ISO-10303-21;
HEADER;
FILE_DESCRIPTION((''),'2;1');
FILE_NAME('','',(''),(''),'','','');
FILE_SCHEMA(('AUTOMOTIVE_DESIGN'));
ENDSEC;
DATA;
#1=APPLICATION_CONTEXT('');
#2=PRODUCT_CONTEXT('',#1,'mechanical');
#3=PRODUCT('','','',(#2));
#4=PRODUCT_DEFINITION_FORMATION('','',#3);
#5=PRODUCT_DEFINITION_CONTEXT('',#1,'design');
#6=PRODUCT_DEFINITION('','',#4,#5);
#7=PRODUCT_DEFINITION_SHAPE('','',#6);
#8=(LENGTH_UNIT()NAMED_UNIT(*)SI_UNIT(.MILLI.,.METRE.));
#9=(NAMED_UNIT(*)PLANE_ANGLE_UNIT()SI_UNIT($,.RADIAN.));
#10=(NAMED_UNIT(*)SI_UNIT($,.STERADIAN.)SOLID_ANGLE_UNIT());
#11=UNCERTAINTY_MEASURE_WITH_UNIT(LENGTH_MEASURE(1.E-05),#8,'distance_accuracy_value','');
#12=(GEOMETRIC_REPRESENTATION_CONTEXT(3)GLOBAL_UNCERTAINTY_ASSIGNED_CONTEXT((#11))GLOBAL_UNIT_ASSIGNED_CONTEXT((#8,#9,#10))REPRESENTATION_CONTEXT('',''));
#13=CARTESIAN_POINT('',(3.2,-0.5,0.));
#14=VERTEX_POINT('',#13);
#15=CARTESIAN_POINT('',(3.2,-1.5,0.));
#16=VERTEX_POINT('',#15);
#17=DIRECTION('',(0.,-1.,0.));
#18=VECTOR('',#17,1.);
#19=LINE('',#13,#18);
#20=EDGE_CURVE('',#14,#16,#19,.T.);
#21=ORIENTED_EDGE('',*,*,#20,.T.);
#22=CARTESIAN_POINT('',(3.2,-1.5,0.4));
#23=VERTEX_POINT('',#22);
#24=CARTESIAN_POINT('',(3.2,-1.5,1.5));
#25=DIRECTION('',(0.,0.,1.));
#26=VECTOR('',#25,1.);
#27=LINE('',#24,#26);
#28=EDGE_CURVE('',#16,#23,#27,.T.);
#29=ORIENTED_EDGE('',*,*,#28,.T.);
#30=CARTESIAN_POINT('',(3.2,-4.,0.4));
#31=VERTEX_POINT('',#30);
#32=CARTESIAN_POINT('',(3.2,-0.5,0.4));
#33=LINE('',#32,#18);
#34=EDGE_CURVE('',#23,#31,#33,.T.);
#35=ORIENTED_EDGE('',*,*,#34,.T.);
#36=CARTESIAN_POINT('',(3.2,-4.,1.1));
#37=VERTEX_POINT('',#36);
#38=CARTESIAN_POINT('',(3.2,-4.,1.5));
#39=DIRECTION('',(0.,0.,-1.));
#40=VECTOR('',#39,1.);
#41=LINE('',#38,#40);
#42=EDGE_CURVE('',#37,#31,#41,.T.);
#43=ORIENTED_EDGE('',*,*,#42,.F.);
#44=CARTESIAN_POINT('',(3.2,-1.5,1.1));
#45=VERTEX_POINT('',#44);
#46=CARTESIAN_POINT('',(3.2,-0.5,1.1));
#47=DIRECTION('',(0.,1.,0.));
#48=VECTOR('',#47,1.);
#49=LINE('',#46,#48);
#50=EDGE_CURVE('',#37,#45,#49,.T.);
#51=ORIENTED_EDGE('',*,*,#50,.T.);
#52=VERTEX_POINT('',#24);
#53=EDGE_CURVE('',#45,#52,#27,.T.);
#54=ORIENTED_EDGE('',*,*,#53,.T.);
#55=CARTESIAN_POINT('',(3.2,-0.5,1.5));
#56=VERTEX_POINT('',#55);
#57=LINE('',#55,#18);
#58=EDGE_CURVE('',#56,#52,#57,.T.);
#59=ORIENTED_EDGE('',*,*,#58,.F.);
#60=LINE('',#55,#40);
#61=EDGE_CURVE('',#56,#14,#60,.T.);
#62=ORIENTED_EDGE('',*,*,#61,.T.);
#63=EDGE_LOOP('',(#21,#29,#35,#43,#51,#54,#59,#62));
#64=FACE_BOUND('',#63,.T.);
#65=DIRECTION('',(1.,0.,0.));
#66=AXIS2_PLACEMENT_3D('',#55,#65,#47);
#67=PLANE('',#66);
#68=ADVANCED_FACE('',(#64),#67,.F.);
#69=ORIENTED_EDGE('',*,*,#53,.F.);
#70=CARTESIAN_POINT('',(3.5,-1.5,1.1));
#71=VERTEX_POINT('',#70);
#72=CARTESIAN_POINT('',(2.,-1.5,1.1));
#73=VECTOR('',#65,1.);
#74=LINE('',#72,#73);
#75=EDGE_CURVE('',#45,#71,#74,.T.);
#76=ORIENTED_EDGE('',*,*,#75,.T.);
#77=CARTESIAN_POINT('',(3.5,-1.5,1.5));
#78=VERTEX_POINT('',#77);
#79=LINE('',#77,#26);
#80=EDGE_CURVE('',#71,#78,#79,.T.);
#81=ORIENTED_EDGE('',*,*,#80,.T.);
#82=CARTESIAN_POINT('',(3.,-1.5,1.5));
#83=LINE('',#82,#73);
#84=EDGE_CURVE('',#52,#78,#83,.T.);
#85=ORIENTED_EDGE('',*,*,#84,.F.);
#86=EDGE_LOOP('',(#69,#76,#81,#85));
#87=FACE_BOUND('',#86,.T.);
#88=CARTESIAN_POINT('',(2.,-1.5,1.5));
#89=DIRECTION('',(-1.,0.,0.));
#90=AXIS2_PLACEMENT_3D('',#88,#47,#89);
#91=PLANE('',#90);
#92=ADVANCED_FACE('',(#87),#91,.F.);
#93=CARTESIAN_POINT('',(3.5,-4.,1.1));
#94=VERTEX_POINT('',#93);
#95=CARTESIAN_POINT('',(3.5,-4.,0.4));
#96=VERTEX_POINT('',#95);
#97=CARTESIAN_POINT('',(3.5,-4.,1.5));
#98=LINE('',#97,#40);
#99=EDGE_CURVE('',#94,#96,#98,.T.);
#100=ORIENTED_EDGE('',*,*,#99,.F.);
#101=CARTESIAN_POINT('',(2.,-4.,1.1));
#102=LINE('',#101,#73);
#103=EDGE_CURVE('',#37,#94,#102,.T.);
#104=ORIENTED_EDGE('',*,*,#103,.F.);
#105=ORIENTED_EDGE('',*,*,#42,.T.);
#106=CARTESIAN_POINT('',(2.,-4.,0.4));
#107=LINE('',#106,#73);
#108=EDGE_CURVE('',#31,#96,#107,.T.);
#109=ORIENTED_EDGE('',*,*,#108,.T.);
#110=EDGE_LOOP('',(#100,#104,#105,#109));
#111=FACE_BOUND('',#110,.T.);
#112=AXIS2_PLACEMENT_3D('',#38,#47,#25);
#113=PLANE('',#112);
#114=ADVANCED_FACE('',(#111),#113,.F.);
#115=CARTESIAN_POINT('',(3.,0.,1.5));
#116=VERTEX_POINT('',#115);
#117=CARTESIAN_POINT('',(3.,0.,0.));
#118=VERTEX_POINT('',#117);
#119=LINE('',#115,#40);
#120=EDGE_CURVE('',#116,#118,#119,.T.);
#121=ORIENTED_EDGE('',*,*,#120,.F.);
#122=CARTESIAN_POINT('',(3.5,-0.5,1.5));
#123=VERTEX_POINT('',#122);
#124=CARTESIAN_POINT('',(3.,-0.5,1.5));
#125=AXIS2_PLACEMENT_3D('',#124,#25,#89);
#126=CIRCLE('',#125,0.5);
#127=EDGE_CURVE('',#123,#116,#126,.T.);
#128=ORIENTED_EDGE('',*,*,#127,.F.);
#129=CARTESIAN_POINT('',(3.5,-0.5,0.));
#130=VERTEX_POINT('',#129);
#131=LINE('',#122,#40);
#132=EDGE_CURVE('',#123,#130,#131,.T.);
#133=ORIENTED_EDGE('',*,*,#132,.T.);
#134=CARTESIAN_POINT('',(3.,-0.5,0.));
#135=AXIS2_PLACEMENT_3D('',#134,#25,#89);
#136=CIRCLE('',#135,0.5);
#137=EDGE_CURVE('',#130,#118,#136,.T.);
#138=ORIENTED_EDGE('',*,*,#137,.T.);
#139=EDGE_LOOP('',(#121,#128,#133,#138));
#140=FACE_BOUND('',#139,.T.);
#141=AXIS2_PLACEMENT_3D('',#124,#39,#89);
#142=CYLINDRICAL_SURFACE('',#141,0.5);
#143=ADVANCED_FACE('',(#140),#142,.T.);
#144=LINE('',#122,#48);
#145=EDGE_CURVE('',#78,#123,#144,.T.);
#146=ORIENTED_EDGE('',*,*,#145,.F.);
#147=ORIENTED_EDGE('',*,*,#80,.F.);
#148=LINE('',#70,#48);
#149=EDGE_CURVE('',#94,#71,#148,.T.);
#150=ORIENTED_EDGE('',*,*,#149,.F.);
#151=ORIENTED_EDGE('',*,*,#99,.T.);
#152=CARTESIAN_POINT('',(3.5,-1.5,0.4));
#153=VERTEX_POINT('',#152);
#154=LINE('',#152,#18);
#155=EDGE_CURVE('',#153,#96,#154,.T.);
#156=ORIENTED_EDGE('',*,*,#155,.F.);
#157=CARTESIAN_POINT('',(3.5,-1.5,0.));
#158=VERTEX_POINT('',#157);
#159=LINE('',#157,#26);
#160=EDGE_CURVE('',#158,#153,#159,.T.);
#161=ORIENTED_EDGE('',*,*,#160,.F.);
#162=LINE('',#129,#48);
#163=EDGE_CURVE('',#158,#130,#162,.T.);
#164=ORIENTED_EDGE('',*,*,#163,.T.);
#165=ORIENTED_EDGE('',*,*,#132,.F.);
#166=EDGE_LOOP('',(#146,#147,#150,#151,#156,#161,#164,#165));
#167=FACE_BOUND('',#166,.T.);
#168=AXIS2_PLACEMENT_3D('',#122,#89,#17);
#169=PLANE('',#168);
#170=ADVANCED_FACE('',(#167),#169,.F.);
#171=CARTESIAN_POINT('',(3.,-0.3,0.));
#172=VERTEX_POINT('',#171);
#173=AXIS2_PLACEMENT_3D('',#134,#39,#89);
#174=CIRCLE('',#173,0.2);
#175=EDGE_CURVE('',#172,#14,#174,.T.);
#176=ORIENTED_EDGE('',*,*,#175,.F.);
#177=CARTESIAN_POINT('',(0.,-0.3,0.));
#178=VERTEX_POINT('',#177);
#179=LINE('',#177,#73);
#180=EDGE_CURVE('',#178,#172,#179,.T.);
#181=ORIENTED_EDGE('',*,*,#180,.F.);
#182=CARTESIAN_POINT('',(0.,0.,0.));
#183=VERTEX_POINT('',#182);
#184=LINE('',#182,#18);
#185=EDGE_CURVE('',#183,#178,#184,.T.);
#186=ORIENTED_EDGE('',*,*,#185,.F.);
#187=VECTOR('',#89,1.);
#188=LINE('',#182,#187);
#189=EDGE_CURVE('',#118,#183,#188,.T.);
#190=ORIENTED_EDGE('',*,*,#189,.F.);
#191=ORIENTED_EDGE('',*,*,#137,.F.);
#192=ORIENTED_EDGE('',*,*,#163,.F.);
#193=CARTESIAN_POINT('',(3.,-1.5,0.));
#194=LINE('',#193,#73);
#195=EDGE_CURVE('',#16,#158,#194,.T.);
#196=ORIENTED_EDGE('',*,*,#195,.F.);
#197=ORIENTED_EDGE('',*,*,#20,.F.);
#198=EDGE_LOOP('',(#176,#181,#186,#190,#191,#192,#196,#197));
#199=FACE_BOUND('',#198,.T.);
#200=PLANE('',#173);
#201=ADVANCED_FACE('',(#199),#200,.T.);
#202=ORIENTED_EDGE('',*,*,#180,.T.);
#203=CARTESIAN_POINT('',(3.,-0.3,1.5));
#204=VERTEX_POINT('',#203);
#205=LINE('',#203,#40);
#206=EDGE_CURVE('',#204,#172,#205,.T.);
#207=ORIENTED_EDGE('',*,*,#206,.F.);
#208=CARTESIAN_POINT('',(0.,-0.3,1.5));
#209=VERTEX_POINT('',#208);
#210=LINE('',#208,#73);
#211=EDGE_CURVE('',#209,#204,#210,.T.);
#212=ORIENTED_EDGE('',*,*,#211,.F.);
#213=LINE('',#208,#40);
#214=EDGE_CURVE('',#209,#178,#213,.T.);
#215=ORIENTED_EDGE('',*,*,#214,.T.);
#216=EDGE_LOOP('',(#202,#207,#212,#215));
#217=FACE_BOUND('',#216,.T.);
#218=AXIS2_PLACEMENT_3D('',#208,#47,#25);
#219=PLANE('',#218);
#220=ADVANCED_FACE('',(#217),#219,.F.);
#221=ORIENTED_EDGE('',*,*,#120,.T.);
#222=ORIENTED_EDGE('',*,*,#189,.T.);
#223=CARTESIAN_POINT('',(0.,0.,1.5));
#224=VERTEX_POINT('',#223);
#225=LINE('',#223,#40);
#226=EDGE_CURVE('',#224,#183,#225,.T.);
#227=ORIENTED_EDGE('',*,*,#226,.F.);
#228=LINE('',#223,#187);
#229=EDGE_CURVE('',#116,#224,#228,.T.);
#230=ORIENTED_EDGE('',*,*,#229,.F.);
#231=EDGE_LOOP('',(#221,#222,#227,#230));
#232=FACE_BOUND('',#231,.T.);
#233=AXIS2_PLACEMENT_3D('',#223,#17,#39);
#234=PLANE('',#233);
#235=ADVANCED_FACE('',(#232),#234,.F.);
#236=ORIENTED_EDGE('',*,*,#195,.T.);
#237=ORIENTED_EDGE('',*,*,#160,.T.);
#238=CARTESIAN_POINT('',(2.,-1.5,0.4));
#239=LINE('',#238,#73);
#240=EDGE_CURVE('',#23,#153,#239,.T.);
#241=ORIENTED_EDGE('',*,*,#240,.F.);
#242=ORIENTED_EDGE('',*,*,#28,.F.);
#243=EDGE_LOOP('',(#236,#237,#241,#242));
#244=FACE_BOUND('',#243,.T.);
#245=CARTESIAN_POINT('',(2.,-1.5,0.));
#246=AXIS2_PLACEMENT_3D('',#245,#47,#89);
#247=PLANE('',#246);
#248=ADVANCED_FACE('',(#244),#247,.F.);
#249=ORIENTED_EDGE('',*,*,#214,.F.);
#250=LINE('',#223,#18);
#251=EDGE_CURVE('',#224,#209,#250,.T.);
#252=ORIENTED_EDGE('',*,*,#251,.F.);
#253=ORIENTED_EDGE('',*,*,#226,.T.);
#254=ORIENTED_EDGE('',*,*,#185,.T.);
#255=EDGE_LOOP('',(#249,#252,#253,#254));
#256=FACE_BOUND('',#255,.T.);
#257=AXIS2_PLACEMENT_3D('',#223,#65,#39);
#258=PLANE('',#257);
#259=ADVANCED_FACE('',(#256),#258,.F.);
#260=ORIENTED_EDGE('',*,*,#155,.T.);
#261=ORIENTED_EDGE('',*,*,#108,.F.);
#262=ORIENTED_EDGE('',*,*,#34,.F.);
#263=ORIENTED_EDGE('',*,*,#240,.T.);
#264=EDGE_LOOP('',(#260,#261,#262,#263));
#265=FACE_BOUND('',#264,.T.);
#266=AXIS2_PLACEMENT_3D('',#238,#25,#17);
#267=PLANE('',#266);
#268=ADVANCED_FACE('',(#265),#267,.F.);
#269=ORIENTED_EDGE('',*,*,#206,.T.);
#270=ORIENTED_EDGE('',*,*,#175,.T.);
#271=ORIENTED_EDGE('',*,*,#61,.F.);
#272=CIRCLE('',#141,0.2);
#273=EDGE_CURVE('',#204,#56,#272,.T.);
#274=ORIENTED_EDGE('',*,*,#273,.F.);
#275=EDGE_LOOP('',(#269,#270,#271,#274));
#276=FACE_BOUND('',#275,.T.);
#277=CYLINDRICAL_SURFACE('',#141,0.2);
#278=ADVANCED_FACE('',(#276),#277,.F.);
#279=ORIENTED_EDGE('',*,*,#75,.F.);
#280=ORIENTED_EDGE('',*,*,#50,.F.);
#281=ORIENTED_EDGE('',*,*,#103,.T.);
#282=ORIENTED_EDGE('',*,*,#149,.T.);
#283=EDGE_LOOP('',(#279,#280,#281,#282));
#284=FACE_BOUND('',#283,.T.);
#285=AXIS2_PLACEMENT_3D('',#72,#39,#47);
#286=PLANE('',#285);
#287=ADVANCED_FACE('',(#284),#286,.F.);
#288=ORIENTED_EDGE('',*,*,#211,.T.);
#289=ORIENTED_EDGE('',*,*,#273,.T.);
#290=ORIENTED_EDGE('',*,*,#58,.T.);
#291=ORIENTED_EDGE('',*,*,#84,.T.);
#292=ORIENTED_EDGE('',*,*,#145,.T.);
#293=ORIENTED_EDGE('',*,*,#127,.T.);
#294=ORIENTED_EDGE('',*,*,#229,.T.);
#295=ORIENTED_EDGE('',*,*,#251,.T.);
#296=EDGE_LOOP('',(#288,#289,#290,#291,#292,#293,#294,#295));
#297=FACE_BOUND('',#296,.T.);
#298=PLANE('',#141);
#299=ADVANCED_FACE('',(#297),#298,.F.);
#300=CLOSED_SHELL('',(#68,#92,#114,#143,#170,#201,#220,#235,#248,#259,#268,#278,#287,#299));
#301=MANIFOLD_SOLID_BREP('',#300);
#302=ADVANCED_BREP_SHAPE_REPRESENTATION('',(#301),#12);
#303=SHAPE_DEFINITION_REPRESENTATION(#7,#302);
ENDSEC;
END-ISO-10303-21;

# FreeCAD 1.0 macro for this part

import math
import FreeCAD as App
import Part
import Sketcher

V = App.Vector
Q = App.Units.Quantity

doc = App.newDocument("Part")
body = doc.addObject("PartDesign::Body", "Body")

# Sketch on XY plane
sketch1 = body.newObject("Sketcher::SketchObject", "Sketch")
sketch1.AttachmentSupport = (doc.getObject("XY_Plane"), [""])
sketch1.MapMode = "FlatFace"
sketch1.addGeometry(Part.LineSegment(V(3, 0, 0), V(0, 0, 0)), False)
sketch1.addGeometry(Part.LineSegment(V(0, 0, 0), V(0, -0.3, 0)), False)
sketch1.addGeometry(Part.LineSegment(V(0, -0.3, 0), V(3, -0.3, 0)), False)
sketch1.addGeometry(Part.ArcOfCircle(Part.Circle(V(3, -0.5, 0), V(0, 0, 1), 0.2), math.radians(0), math.radians(90)), False)
sketch1.addGeometry(Part.LineSegment(V(3.2, -0.5, 0), V(3.2, -4, 0)), False)
sketch1.addGeometry(Part.LineSegment(V(3.2, -4, 0), V(3.5, -4, 0)), False)
sketch1.addGeometry(Part.LineSegment(V(3.5, -4, 0), V(3.5, -0.5, 0)), False)
sketch1.addGeometry(Part.ArcOfCircle(Part.Circle(V(3, -0.5, 0), V(0, 0, 1), 0.5), math.radians(0), math.radians(90)), False)
sketch1.addConstraint(Sketcher.Constraint("Coincident", 0, 2, 1, 1))
sketch1.addConstraint(Sketcher.Constraint("Coincident", 1, 2, 2, 1))
sketch1.addConstraint(Sketcher.Constraint("Tangent", 2, 2, 3, 2))
sketch1.addConstraint(Sketcher.Constraint("Tangent", 3, 1, 4, 1))
sketch1.addConstraint(Sketcher.Constraint("Coincident", 4, 2, 5, 1))
sketch1.addConstraint(Sketcher.Constraint("Coincident", 5, 2, 6, 1))
sketch1.addConstraint(Sketcher.Constraint("Tangent", 6, 2, 7, 1))
sketch1.addConstraint(Sketcher.Constraint("Tangent", 7, 2, 0, 1))
sketch1.addConstraint(Sketcher.Constraint("Horizontal", 0))
sketch1.addConstraint(Sketcher.Constraint("Vertical", 1))
sketch1.addConstraint(Sketcher.Constraint("Horizontal", 2))
sketch1.addConstraint(Sketcher.Constraint("Vertical", 4))
sketch1.addConstraint(Sketcher.Constraint("Horizontal", 5))
sketch1.addConstraint(Sketcher.Constraint("Vertical", 6))
sketch1.addConstraint(Sketcher.Constraint("Coincident", 0, 2, -1, 1))
sketch1.addConstraint(Sketcher.Constraint("Coincident", 7, 3, 3, 3))
sketch1.addConstraint(Sketcher.Constraint("Radius", 3, Q("0.2 mm")))
sketch1.addConstraint(Sketcher.Constraint("Radius", 7, Q("0.5 mm")))
sketch1.addConstraint(Sketcher.Constraint("DistanceX", 0, 2, 0, 1, Q("3 mm")))
sketch1.addConstraint(Sketcher.Constraint("DistanceY", 4, 2, 4, 1, Q("3.5 mm")))
pad1 = body.newObject("PartDesign::Pad", "Pad")
pad1.Profile = sketch1
pad1.Length = 1.5

# Sketch on YZ plane
sketch2 = body.newObject("Sketcher::SketchObject", "Sketch001")
sketch2.AttachmentSupport = (doc.getObject("YZ_Plane"), [""])
sketch2.MapMode = "FlatFace"
sketch2.AttachmentOffset = App.Placement(V(0, 0, 3.5), App.Rotation())
sketch2.addGeometry(Part.LineSegment(V(-1.5, 1.5, 0), V(-4, 1.5, 0)), False)
sketch2.addGeometry(Part.LineSegment(V(-4, 1.5, 0), V(-4, 1.1, 0)), False)
sketch2.addGeometry(Part.LineSegment(V(-4, 1.1, 0), V(-1.5, 1.1, 0)), False)
sketch2.addGeometry(Part.LineSegment(V(-1.5, 1.1, 0), V(-1.5, 1.5, 0)), False)
sketch2.addGeometry(Part.LineSegment(V(-1.5, 0.4, 0), V(-4, 0.4, 0)), False)
sketch2.addGeometry(Part.LineSegment(V(-4, 0.4, 0), V(-4, 0, 0)), False)
sketch2.addGeometry(Part.LineSegment(V(-4, 0, 0), V(-1.5, 0, 0)), False)
sketch2.addGeometry(Part.LineSegment(V(-1.5, 0, 0), V(-1.5, 0.4, 0)), False)
sketch2.addConstraint(Sketcher.Constraint("Coincident", 0, 2, 1, 1))
sketch2.addConstraint(Sketcher.Constraint("Coincident", 1, 2, 2, 1))
sketch2.addConstraint(Sketcher.Constraint("Coincident", 2, 2, 3, 1))
sketch2.addConstraint(Sketcher.Constraint("Coincident", 3, 2, 0, 1))
sketch2.addConstraint(Sketcher.Constraint("Coincident", 4, 2, 5, 1))
sketch2.addConstraint(Sketcher.Constraint("Coincident", 5, 2, 6, 1))
sketch2.addConstraint(Sketcher.Constraint("Coincident", 6, 2, 7, 1))
sketch2.addConstraint(Sketcher.Constraint("Coincident", 7, 2, 4, 1))
sketch2.addConstraint(Sketcher.Constraint("Horizontal", 0))
sketch2.addConstraint(Sketcher.Constraint("Vertical", 1))
sketch2.addConstraint(Sketcher.Constraint("Horizontal", 2))
sketch2.addConstraint(Sketcher.Constraint("Vertical", 3))
sketch2.addConstraint(Sketcher.Constraint("Horizontal", 4))
sketch2.addConstraint(Sketcher.Constraint("Vertical", 5))
sketch2.addConstraint(Sketcher.Constraint("Horizontal", 6))
sketch2.addConstraint(Sketcher.Constraint("Vertical", 7))
sketch2.addConstraint(Sketcher.Constraint("PointOnObject", 5, 2, -1))
sketch2.addConstraint(Sketcher.Constraint("Vertical", 1, 2, 4, 2))
sketch2.addConstraint(Sketcher.Constraint("Vertical", 3, 2, 6, 2))
sketch2.addConstraint(Sketcher.Constraint("Equal", 3, 5))
sketch2.addConstraint(Sketcher.Constraint("DistanceX", 0, 2, 0, 1, Q("2.5 mm")))
sketch2.addConstraint(Sketcher.Constraint("DistanceY", 1, 2, 1, 1, Q("0.4 mm")))
sketch2.addConstraint(Sketcher.Constraint("DistanceX", 0, 2, -1, 1, Q("4 mm")))
sketch2.addConstraint(Sketcher.Constraint("DistanceY", -1, 1, 0, 2, Q("1.5 mm")))
pocket1 = body.newObject("PartDesign::Pocket", "Pocket")
pocket1.Profile = sketch2
pocket1.Length = 1.5

doc.recompute()
